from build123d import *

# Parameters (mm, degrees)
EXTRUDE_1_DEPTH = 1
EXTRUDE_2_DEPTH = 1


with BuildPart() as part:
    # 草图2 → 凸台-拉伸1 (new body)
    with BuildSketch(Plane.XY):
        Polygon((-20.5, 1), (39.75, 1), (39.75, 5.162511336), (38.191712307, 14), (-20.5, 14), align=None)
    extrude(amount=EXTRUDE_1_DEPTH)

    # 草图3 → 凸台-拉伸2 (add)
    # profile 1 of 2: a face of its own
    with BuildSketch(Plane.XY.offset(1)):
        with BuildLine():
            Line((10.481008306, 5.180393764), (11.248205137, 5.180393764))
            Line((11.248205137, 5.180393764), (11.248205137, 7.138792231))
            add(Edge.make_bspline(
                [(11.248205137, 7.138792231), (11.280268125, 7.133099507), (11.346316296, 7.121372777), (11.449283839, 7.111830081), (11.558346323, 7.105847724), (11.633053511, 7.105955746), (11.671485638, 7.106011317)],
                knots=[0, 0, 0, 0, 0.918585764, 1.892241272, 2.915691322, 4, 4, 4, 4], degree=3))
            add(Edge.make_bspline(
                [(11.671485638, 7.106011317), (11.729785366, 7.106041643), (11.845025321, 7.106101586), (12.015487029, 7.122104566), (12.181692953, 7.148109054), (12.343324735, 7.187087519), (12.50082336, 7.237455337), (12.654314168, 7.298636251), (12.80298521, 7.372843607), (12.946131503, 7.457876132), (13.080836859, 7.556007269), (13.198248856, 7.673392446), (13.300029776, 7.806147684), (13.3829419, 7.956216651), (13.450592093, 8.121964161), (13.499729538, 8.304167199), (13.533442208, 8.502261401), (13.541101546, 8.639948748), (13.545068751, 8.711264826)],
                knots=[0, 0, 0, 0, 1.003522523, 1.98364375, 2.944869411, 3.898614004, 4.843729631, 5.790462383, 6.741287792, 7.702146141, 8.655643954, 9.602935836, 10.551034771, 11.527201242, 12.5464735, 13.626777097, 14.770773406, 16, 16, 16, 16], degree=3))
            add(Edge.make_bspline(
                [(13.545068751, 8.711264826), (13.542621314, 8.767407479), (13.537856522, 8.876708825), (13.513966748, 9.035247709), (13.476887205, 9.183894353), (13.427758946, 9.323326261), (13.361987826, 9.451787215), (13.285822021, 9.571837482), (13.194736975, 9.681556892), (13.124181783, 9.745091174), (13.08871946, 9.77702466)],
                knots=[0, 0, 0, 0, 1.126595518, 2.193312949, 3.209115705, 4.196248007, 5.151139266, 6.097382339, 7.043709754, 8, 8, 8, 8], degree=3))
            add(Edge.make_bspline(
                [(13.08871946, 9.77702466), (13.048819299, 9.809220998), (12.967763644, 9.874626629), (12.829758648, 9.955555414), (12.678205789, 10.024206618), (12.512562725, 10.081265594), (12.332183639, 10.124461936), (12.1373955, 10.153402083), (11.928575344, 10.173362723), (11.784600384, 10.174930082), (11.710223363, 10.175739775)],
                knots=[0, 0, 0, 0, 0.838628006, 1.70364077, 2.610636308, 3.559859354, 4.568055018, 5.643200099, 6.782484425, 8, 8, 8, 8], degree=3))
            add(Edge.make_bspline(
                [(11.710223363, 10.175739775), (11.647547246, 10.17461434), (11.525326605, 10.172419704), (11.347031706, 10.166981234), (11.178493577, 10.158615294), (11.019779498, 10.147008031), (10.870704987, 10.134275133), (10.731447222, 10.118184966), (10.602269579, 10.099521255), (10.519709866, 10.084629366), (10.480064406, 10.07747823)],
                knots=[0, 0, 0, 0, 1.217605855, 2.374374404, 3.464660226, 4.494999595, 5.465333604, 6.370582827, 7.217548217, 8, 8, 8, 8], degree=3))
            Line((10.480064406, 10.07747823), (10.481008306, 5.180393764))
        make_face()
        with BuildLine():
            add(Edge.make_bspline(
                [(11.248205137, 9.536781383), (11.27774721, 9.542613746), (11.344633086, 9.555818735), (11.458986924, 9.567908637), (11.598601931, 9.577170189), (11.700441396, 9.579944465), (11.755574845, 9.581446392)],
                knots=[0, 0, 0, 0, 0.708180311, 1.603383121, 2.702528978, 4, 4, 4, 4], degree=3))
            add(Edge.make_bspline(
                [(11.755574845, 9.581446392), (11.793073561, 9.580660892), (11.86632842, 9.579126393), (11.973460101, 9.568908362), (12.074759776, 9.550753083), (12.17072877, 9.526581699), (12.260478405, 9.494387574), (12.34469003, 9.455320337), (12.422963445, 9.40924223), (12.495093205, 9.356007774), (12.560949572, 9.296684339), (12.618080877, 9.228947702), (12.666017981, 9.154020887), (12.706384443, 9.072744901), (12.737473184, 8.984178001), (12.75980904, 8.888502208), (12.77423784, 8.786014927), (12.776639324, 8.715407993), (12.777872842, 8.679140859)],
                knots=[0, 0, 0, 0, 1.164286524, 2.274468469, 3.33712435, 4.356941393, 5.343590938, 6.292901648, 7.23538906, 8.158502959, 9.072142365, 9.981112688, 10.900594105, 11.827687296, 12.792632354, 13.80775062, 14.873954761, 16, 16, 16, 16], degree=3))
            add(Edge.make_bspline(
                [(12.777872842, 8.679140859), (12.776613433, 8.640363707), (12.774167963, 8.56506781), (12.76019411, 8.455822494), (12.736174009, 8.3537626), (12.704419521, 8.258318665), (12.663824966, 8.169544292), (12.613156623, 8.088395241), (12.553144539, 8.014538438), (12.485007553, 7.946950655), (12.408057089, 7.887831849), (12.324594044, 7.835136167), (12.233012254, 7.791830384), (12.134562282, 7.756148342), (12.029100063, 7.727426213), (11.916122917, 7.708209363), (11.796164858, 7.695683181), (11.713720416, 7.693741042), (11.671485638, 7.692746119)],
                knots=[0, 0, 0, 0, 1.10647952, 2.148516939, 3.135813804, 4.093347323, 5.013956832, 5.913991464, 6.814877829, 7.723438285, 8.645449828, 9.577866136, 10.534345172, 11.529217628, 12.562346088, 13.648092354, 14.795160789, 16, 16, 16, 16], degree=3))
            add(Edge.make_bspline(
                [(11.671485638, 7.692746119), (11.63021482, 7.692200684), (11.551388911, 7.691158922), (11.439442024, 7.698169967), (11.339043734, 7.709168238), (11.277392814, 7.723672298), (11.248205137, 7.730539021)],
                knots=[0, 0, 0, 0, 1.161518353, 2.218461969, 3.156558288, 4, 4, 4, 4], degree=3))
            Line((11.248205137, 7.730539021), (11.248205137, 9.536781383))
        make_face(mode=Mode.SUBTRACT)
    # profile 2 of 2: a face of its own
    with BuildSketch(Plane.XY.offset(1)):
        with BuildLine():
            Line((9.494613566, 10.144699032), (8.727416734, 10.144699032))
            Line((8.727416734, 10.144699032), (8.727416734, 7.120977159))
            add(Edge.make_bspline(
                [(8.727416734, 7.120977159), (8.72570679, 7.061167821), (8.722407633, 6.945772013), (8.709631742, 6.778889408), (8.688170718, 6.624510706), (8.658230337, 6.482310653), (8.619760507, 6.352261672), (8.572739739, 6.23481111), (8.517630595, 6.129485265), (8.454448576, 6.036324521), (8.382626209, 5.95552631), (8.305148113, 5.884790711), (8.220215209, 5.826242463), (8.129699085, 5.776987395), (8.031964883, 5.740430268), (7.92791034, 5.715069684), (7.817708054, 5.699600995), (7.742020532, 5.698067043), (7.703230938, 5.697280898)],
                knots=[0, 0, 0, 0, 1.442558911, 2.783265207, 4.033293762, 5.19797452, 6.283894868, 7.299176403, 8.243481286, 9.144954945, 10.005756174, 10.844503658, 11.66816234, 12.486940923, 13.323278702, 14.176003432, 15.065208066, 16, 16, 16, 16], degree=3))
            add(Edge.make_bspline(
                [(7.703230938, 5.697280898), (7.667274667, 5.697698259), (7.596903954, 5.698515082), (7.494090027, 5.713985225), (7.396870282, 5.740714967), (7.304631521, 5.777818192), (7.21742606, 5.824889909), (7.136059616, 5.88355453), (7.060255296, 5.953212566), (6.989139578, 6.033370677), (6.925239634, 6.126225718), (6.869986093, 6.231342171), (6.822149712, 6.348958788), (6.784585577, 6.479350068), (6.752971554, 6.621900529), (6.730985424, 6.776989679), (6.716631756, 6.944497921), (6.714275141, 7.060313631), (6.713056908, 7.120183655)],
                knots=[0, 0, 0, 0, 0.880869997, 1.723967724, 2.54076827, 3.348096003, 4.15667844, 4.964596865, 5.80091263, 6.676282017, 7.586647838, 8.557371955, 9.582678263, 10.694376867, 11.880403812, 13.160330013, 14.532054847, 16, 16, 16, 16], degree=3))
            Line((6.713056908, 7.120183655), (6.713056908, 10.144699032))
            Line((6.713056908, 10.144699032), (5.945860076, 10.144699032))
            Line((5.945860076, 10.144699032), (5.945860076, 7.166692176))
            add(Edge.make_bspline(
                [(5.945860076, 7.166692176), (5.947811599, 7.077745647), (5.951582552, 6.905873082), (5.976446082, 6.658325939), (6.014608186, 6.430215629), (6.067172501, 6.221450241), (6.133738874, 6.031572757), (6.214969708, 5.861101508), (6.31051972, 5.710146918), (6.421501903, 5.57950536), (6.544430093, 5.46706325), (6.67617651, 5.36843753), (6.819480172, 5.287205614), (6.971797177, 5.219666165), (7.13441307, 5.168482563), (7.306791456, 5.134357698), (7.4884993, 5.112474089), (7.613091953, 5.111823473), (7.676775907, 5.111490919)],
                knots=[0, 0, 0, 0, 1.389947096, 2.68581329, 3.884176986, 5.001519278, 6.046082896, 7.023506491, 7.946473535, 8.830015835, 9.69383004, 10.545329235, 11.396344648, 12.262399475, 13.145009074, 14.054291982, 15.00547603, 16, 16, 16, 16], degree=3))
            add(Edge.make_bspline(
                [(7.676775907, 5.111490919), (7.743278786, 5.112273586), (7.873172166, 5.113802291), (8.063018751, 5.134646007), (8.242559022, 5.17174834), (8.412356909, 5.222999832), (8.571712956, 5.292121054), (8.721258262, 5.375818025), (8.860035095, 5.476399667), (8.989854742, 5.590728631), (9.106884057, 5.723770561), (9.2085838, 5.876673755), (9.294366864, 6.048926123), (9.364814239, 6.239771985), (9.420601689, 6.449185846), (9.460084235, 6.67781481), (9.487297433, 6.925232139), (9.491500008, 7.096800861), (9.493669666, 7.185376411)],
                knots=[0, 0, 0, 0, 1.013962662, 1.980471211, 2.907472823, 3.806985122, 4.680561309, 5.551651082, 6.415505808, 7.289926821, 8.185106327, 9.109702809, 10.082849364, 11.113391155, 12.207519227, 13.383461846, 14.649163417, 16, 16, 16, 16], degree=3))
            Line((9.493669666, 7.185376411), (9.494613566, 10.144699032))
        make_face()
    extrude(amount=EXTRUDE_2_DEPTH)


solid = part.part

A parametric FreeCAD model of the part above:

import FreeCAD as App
import Part
import Sketcher

V = App.Vector
Q = App.Units.Quantity


def add_polygon(sketch, points):
    """Adds a closed chain of lines whose ends are joined by coincident constraints."""
    first, n = sketch.GeometryCount, len(points)
    for a, b in zip(points, points[1:] + points[:1]):
        sketch.addGeometry(Part.LineSegment(App.Vector(*a, 0), App.Vector(*b, 0)), False)
    for i in range(n):
        sketch.addConstraint(Sketcher.Constraint("Coincident", first + i, 2, first + (i + 1) % n, 1))

doc = App.newDocument("Part")
params = doc.addObject("Spreadsheet::Sheet", "Params")
for row, (alias, value) in enumerate([
    ("sketch1_height", "13 mm"),
    ("sketch1_width", "60.25 mm"),
    ("pad1_length", "1 mm"),
    ("pad2_length", "1 mm"),
], start=1):
    params.set(f"A{row}", alias)
    params.set(f"B{row}", "=" + value)
    params.setAlias(f"B{row}", alias)

body = doc.addObject("PartDesign::Body", "Body")

sketch1 = body.newObject("Sketcher::SketchObject", "Sketch")
sketch1.AttachmentSupport = (doc.getObject("XY_Plane"), [""])
sketch1.MapMode = "FlatFace"
add_polygon(sketch1, [(-20.5, 1), (39.8, 1), (39.8, 5.2), (38.2, 14), (-20.5, 14)])
sketch1.addConstraint([
    Sketcher.Constraint("Horizontal", 0),
    Sketcher.Constraint("Vertical", 1),
    Sketcher.Constraint("Horizontal", 3),
    Sketcher.Constraint("Vertical", 4),
    Sketcher.Constraint("DistanceY", 4, 2, 4, 1, Q("13 mm")),
    Sketcher.Constraint("Angle", 2, Q("100 deg")),
    Sketcher.Constraint("DistanceY", -1, 1, 0, 2, Q("1 mm")),
    Sketcher.Constraint("DistanceX", 0, 1, 0, 2, Q("60.25 mm")),
    Sketcher.Constraint("DistanceX", 3, 2, -1, 1, Q("20.5 mm")),
    Sketcher.Constraint("DistanceY", 1, 1, 1, 2, Q("4.162511 mm")),
])
sketch1.setExpression("Constraints[9]", "Params.sketch1_height")
sketch1.setExpression("Constraints[12]", "Params.sketch1_width")
pad1 = body.newObject("PartDesign::Pad", "Pad")
pad1.Profile = sketch1
pad1.setExpression("Length", "Params.pad1_length")

sketch2 = body.newObject("Sketcher::SketchObject", "Sketch001")
sketch2.AttachmentSupport = (doc.getObject("XY_Plane"), [""])
sketch2.MapMode = "FlatFace"
sketch2.AttachmentOffset = App.Placement(V(0, 0, 1), App.Rotation())
sketch2.addGeometry([
    Part.LineSegment(V(10.481008, 5.180394, 0), V(11.248205, 5.180394, 0)),
    Part.LineSegment(V(11.248205, 5.180394, 0), V(11.248205, 7.138792, 0)),
    Part.BSplineCurve([V(11.248205, 7.138792, 0), V(11.280268, 7.1331, 0), V(11.346316, 7.121373, 0), V(11.449284, 7.11183, 0), V(11.558346, 7.105848, 0), V(11.633054, 7.105956, 0), V(11.671486, 7.106011, 0)], [4, 1, 1, 1, 4], [0, 0.918585764, 1.892241272, 2.915691322, 4], False, 3, [1, 1, 1, 1, 1, 1, 1], False),
    Part.BSplineCurve([V(11.671486, 7.106011, 0), V(11.729785, 7.106042, 0), V(11.845025, 7.106102, 0), V(12.015487, 7.122105, 0), V(12.181693, 7.148109, 0), V(12.343325, 7.187088, 0), V(12.500823, 7.237455, 0), V(12.654314, 7.298636, 0), V(12.802985, 7.372844, 0), V(12.946132, 7.457876, 0), V(13.080837, 7.556007, 0), V(13.198249, 7.673392, 0), V(13.30003, 7.806148, 0), V(13.382942, 7.956217, 0), V(13.450592, 8.121964, 0), V(13.49973, 8.304167, 0), V(13.533442, 8.502261, 0), V(13.541102, 8.639949, 0), V(13.545069, 8.711265, 0)], [4, 1, 1, 1, 1, 1, 1, 1, 1, 1, 1, 1, 1, 1, 1, 1, 4], [0, 1.003522523, 1.98364375, 2.944869411, 3.898614004, 4.843729631, 5.790462383, 6.741287792, 7.702146141, 8.655643954, 9.602935836, 10.551034771, 11.527201242, 12.5464735, 13.626777097, 14.770773406, 16], False, 3, [1, 1, 1, 1, 1, 1, 1, 1, 1, 1, 1, 1, 1, 1, 1, 1, 1, 1, 1], False),
    Part.BSplineCurve([V(13.545069, 8.711265, 0), V(13.542621, 8.767407, 0), V(13.537857, 8.876709, 0), V(13.513967, 9.035248, 0), V(13.476887, 9.183894, 0), V(13.427759, 9.323326, 0), V(13.361988, 9.451787, 0), V(13.285822, 9.571837, 0), V(13.194737, 9.681557, 0), V(13.124182, 9.745091, 0), V(13.088719, 9.777025, 0)], [4, 1, 1, 1, 1, 1, 1, 1, 4], [0, 1.126595518, 2.193312949, 3.209115705, 4.196248007, 5.151139266, 6.097382339, 7.043709754, 8], False, 3, [1, 1, 1, 1, 1, 1, 1, 1, 1, 1, 1], False),
    Part.BSplineCurve([V(13.088719, 9.777025, 0), V(13.048819, 9.809221, 0), V(12.967764, 9.874627, 0), V(12.829759, 9.955555, 0), V(12.678206, 10.024207, 0), V(12.512563, 10.081266, 0), V(12.332184, 10.124462, 0), V(12.137396, 10.153402, 0), V(11.928575, 10.173363, 0), V(11.7846, 10.17493, 0), V(11.710223, 10.17574, 0)], [4, 1, 1, 1, 1, 1, 1, 1, 4], [0, 0.838628006, 1.70364077, 2.610636308, 3.559859354, 4.568055018, 5.643200099, 6.782484425, 8], False, 3, [1, 1, 1, 1, 1, 1, 1, 1, 1, 1, 1], False),
    Part.BSplineCurve([V(11.710223, 10.17574, 0), V(11.647547, 10.174614, 0), V(11.525327, 10.17242, 0), V(11.347032, 10.166981, 0), V(11.178494, 10.158615, 0), V(11.019779, 10.147008, 0), V(10.870705, 10.134275, 0), V(10.731447, 10.118185, 0), V(10.60227, 10.099521, 0), V(10.51971, 10.084629, 0), V(10.480064, 10.077478, 0)], [4, 1, 1, 1, 1, 1, 1, 1, 4], [0, 1.217605855, 2.374374404, 3.464660226, 4.494999595, 5.465333604, 6.370582827, 7.217548217, 8], False, 3, [1, 1, 1, 1, 1, 1, 1, 1, 1, 1, 1], False),
    Part.LineSegment(V(10.480064, 10.077478, 0), V(10.481008, 5.180394, 0)),
    Part.LineSegment(V(11.248205, 7.730539, 0), V(11.248205, 9.536781, 0)),
    Part.BSplineCurve([V(11.248205, 9.536781, 0), V(11.277747, 9.542614, 0), V(11.344633, 9.555819, 0), V(11.458987, 9.567909, 0), V(11.598602, 9.57717, 0), V(11.700441, 9.579944, 0), V(11.755575, 9.581446, 0)], [4, 1, 1, 1, 4], [0, 0.708180311, 1.603383121, 2.702528978, 4], False, 3, [1, 1, 1, 1, 1, 1, 1], False),
    Part.BSplineCurve([V(11.755575, 9.581446, 0), V(11.793074, 9.580661, 0), V(11.866328, 9.579126, 0), V(11.97346, 9.568908, 0), V(12.07476, 9.550753, 0), V(12.170729, 9.526582, 0), V(12.260478, 9.494388, 0), V(12.34469, 9.45532, 0), V(12.422963, 9.409242, 0), V(12.495093, 9.356008, 0), V(12.56095, 9.296684, 0), V(12.618081, 9.228948, 0), V(12.666018, 9.154021, 0), V(12.706384, 9.072745, 0), V(12.737473, 8.984178, 0), V(12.759809, 8.888502, 0), V(12.774238, 8.786015, 0), V(12.776639, 8.715408, 0), V(12.777873, 8.679141, 0)], [4, 1, 1, 1, 1, 1, 1, 1, 1, 1, 1, 1, 1, 1, 1, 1, 4], [0, 1.164286524, 2.274468469, 3.33712435, 4.356941393, 5.343590938, 6.292901648, 7.23538906, 8.158502959, 9.072142365, 9.981112688, 10.900594105, 11.827687296, 12.792632354, 13.80775062, 14.873954761, 16], False, 3, [1, 1, 1, 1, 1, 1, 1, 1, 1, 1, 1, 1, 1, 1, 1, 1, 1, 1, 1], False),
    Part.BSplineCurve([V(12.777873, 8.679141, 0), V(12.776613, 8.640364, 0), V(12.774168, 8.565068, 0), V(12.760194, 8.455822, 0), V(12.736174, 8.353763, 0), V(12.70442, 8.258319, 0), V(12.663825, 8.169544, 0), V(12.613157, 8.088395, 0), V(12.553145, 8.014538, 0), V(12.485008, 7.946951, 0), V(12.408057, 7.887832, 0), V(12.324594, 7.835136, 0), V(12.233012, 7.79183, 0), V(12.134562, 7.756148, 0), V(12.0291, 7.727426, 0), V(11.916123, 7.708209, 0), V(11.796165, 7.695683, 0), V(11.71372, 7.693741, 0), V(11.671486, 7.692746, 0)], [4, 1, 1, 1, 1, 1, 1, 1, 1, 1, 1, 1, 1, 1, 1, 1, 4], [0, 1.10647952, 2.148516939, 3.135813804, 4.093347323, 5.013956832, 5.913991464, 6.814877829, 7.723438285, 8.645449828, 9.577866136, 10.534345172, 11.529217628, 12.562346088, 13.648092354, 14.795160789, 16], False, 3, [1, 1, 1, 1, 1, 1, 1, 1, 1, 1, 1, 1, 1, 1, 1, 1, 1, 1, 1], False),
    Part.BSplineCurve([V(11.671486, 7.692746, 0), V(11.630215, 7.692201, 0), V(11.551389, 7.691159, 0), V(11.439442, 7.69817, 0), V(11.339044, 7.709168, 0), V(11.277393, 7.723672, 0), V(11.248205, 7.730539, 0)], [4, 1, 1, 1, 4], [0, 1.161518353, 2.218461969, 3.156558288, 4], False, 3, [1, 1, 1, 1, 1, 1, 1], False),
    Part.LineSegment(V(9.494614, 10.144699, 0), V(8.727417, 10.144699, 0)),
    Part.LineSegment(V(8.727417, 10.144699, 0), V(8.727417, 7.120977, 0)),
    Part.BSplineCurve([V(8.727417, 7.120977, 0), V(8.725707, 7.061168, 0), V(8.722408, 6.945772, 0), V(8.709632, 6.778889, 0), V(8.688171, 6.624511, 0), V(8.65823, 6.482311, 0), V(8.619761, 6.352262, 0), V(8.57274, 6.234811, 0), V(8.517631, 6.129485, 0), V(8.454449, 6.036325, 0), V(8.382626, 5.955526, 0), V(8.305148, 5.884791, 0), V(8.220215, 5.826242, 0), V(8.129699, 5.776987, 0), V(8.031965, 5.74043, 0), V(7.92791, 5.71507, 0), V(7.817708, 5.699601, 0), V(7.742021, 5.698067, 0), V(7.703231, 5.697281, 0)], [4, 1, 1, 1, 1, 1, 1, 1, 1, 1, 1, 1, 1, 1, 1, 1, 4], [0, 1.442558911, 2.783265207, 4.033293762, 5.19797452, 6.283894868, 7.299176403, 8.243481286, 9.144954945, 10.005756174, 10.844503658, 11.66816234, 12.486940923, 13.323278702, 14.176003432, 15.065208066, 16], False, 3, [1, 1, 1, 1, 1, 1, 1, 1, 1, 1, 1, 1, 1, 1, 1, 1, 1, 1, 1], False),
    Part.BSplineCurve([V(7.703231, 5.697281, 0), V(7.667275, 5.697698, 0), V(7.596904, 5.698515, 0), V(7.49409, 5.713985, 0), V(7.39687, 5.740715, 0), V(7.304632, 5.777818, 0), V(7.217426, 5.82489, 0), V(7.13606, 5.883555, 0), V(7.060255, 5.953213, 0), V(6.98914, 6.033371, 0), V(6.92524, 6.126226, 0), V(6.869986, 6.231342, 0), V(6.82215, 6.348959, 0), V(6.784586, 6.47935, 0), V(6.752972, 6.621901, 0), V(6.730985, 6.77699, 0), V(6.716632, 6.944498, 0), V(6.714275, 7.060314, 0), V(6.713057, 7.120184, 0)], [4, 1, 1, 1, 1, 1, 1, 1, 1, 1, 1, 1, 1, 1, 1, 1, 4], [0, 0.880869997, 1.723967724, 2.54076827, 3.348096003, 4.15667844, 4.964596865, 5.80091263, 6.676282017, 7.586647838, 8.557371955, 9.582678263, 10.694376867, 11.880403812, 13.160330013, 14.532054847, 16], False, 3, [1, 1, 1, 1, 1, 1, 1, 1, 1, 1, 1, 1, 1, 1, 1, 1, 1, 1, 1], False),
    Part.LineSegment(V(6.713057, 7.120184, 0), V(6.713057, 10.144699, 0)),
    Part.LineSegment(V(6.713057, 10.144699, 0), V(5.94586, 10.144699, 0)),
    Part.LineSegment(V(5.94586, 10.144699, 0), V(5.94586, 7.166692, 0)),
    Part.BSplineCurve([V(5.94586, 7.166692, 0), V(5.947812, 7.077746, 0), V(5.951583, 6.905873, 0), V(5.976446, 6.658326, 0), V(6.014608, 6.430216, 0), V(6.067173, 6.22145, 0), V(6.133739, 6.031573, 0), V(6.21497, 5.861102, 0), V(6.31052, 5.710147, 0), V(6.421502, 5.579505, 0), V(6.54443, 5.467063, 0), V(6.676177, 5.368438, 0), V(6.81948, 5.287206, 0), V(6.971797, 5.219666, 0), V(7.134413, 5.168483, 0), V(7.306791, 5.134358, 0), V(7.488499, 5.112474, 0), V(7.613092, 5.111823, 0), V(7.676776, 5.111491, 0)], [4, 1, 1, 1, 1, 1, 1, 1, 1, 1, 1, 1, 1, 1, 1, 1, 4], [0, 1.389947096, 2.68581329, 3.884176986, 5.001519278, 6.046082896, 7.023506491, 7.946473535, 8.830015835, 9.69383004, 10.545329235, 11.396344648, 12.262399475, 13.145009074, 14.054291982, 15.00547603, 16], False, 3, [1, 1, 1, 1, 1, 1, 1, 1, 1, 1, 1, 1, 1, 1, 1, 1, 1, 1, 1], False),
    Part.BSplineCurve([V(7.676776, 5.111491, 0), V(7.743279, 5.112274, 0), V(7.873172, 5.113802, 0), V(8.063019, 5.134646, 0), V(8.242559, 5.171748, 0), V(8.412357, 5.223, 0), V(8.571713, 5.292121, 0), V(8.721258, 5.375818, 0), V(8.860035, 5.4764, 0), V(8.989855, 5.590729, 0), V(9.106884, 5.723771, 0), V(9.208584, 5.876674, 0), V(9.294367, 6.048926, 0), V(9.364814, 6.239772, 0), V(9.420602, 6.449186, 0), V(9.460084, 6.677815, 0), V(9.487297, 6.925232, 0), V(9.4915, 7.096801, 0), V(9.49367, 7.185376, 0)], [4, 1, 1, 1, 1, 1, 1, 1, 1, 1, 1, 1, 1, 1, 1, 1, 4], [0, 1.013962662, 1.980471211, 2.907472823, 3.806985122, 4.680561309, 5.551651082, 6.415505808, 7.289926821, 8.185106327, 9.109702809, 10.082849364, 11.113391155, 12.207519227, 13.383461846, 14.649163417, 16], False, 3, [1, 1, 1, 1, 1, 1, 1, 1, 1, 1, 1, 1, 1, 1, 1, 1, 1, 1, 1], False),
    Part.LineSegment(V(9.49367, 7.185376, 0), V(9.494614, 10.144699, 0)),
], False)
sketch2.addConstraint([
    Sketcher.Constraint("Block", 2),
    Sketcher.Constraint("Block", 3),
    Sketcher.Constraint("Block", 4),
    Sketcher.Constraint("Block", 5),
    Sketcher.Constraint("Block", 6),
    Sketcher.Constraint("Block", 9),
    Sketcher.Constraint("Block", 10),
    Sketcher.Constraint("Block", 11),
    Sketcher.Constraint("Block", 12),
    Sketcher.Constraint("Block", 15),
    Sketcher.Constraint("Block", 16),
    Sketcher.Constraint("Block", 20),
    Sketcher.Constraint("Block", 21),
    Sketcher.Constraint("Coincident", 0, 2, 1, 1),
    Sketcher.Constraint("Coincident", 1, 2, 2, 1),
    Sketcher.Constraint("Coincident", 6, 2, 7, 1),
    Sketcher.Constraint("Coincident", 7, 2, 0, 1),
    Sketcher.Constraint("Coincident", 8, 2, 9, 1),
    Sketcher.Constraint("Coincident", 12, 2, 8, 1),
    Sketcher.Constraint("Coincident", 13, 2, 14, 1),
    Sketcher.Constraint("Coincident", 14, 2, 15, 1),
    Sketcher.Constraint("Coincident", 16, 2, 17, 1),
    Sketcher.Constraint("Coincident", 17, 2, 18, 1),
    Sketcher.Constraint("Coincident", 18, 2, 19, 1),
    Sketcher.Constraint("Coincident", 19, 2, 20, 1),
    Sketcher.Constraint("Coincident", 21, 2, 22, 1),
    Sketcher.Constraint("Coincident", 22, 2, 13, 1),
    Sketcher.Constraint("Horizontal", 0),
    Sketcher.Constraint("Vertical", 1),
    Sketcher.Constraint("Horizontal", 13),
    Sketcher.Constraint("Vertical", 14),
    Sketcher.Constraint("Vertical", 17),
    Sketcher.Constraint("Horizontal", 18),
    Sketcher.Constraint("Vertical", 19),
    Sketcher.Constraint("DistanceY", 1, 1, 1, 2, Q("1.958398 mm")),
    Sketcher.Constraint("DistanceY", 14, 2, 14, 1, Q("3.023722 mm")),
    Sketcher.Constraint("DistanceY", -1, 1, 17, 2, Q("10.144699 mm")),
    Sketcher.Constraint("DistanceX", 0, 1, 0, 2, Q("0.767197 mm")),
    Sketcher.Constraint("DistanceX", 13, 2, 13, 1, Q("0.767197 mm")),
])
pad2 = body.newObject("PartDesign::Pad", "Pad001")
pad2.Profile = sketch2
pad2.setExpression("Length", "Params.pad2_length")

doc.recompute()
